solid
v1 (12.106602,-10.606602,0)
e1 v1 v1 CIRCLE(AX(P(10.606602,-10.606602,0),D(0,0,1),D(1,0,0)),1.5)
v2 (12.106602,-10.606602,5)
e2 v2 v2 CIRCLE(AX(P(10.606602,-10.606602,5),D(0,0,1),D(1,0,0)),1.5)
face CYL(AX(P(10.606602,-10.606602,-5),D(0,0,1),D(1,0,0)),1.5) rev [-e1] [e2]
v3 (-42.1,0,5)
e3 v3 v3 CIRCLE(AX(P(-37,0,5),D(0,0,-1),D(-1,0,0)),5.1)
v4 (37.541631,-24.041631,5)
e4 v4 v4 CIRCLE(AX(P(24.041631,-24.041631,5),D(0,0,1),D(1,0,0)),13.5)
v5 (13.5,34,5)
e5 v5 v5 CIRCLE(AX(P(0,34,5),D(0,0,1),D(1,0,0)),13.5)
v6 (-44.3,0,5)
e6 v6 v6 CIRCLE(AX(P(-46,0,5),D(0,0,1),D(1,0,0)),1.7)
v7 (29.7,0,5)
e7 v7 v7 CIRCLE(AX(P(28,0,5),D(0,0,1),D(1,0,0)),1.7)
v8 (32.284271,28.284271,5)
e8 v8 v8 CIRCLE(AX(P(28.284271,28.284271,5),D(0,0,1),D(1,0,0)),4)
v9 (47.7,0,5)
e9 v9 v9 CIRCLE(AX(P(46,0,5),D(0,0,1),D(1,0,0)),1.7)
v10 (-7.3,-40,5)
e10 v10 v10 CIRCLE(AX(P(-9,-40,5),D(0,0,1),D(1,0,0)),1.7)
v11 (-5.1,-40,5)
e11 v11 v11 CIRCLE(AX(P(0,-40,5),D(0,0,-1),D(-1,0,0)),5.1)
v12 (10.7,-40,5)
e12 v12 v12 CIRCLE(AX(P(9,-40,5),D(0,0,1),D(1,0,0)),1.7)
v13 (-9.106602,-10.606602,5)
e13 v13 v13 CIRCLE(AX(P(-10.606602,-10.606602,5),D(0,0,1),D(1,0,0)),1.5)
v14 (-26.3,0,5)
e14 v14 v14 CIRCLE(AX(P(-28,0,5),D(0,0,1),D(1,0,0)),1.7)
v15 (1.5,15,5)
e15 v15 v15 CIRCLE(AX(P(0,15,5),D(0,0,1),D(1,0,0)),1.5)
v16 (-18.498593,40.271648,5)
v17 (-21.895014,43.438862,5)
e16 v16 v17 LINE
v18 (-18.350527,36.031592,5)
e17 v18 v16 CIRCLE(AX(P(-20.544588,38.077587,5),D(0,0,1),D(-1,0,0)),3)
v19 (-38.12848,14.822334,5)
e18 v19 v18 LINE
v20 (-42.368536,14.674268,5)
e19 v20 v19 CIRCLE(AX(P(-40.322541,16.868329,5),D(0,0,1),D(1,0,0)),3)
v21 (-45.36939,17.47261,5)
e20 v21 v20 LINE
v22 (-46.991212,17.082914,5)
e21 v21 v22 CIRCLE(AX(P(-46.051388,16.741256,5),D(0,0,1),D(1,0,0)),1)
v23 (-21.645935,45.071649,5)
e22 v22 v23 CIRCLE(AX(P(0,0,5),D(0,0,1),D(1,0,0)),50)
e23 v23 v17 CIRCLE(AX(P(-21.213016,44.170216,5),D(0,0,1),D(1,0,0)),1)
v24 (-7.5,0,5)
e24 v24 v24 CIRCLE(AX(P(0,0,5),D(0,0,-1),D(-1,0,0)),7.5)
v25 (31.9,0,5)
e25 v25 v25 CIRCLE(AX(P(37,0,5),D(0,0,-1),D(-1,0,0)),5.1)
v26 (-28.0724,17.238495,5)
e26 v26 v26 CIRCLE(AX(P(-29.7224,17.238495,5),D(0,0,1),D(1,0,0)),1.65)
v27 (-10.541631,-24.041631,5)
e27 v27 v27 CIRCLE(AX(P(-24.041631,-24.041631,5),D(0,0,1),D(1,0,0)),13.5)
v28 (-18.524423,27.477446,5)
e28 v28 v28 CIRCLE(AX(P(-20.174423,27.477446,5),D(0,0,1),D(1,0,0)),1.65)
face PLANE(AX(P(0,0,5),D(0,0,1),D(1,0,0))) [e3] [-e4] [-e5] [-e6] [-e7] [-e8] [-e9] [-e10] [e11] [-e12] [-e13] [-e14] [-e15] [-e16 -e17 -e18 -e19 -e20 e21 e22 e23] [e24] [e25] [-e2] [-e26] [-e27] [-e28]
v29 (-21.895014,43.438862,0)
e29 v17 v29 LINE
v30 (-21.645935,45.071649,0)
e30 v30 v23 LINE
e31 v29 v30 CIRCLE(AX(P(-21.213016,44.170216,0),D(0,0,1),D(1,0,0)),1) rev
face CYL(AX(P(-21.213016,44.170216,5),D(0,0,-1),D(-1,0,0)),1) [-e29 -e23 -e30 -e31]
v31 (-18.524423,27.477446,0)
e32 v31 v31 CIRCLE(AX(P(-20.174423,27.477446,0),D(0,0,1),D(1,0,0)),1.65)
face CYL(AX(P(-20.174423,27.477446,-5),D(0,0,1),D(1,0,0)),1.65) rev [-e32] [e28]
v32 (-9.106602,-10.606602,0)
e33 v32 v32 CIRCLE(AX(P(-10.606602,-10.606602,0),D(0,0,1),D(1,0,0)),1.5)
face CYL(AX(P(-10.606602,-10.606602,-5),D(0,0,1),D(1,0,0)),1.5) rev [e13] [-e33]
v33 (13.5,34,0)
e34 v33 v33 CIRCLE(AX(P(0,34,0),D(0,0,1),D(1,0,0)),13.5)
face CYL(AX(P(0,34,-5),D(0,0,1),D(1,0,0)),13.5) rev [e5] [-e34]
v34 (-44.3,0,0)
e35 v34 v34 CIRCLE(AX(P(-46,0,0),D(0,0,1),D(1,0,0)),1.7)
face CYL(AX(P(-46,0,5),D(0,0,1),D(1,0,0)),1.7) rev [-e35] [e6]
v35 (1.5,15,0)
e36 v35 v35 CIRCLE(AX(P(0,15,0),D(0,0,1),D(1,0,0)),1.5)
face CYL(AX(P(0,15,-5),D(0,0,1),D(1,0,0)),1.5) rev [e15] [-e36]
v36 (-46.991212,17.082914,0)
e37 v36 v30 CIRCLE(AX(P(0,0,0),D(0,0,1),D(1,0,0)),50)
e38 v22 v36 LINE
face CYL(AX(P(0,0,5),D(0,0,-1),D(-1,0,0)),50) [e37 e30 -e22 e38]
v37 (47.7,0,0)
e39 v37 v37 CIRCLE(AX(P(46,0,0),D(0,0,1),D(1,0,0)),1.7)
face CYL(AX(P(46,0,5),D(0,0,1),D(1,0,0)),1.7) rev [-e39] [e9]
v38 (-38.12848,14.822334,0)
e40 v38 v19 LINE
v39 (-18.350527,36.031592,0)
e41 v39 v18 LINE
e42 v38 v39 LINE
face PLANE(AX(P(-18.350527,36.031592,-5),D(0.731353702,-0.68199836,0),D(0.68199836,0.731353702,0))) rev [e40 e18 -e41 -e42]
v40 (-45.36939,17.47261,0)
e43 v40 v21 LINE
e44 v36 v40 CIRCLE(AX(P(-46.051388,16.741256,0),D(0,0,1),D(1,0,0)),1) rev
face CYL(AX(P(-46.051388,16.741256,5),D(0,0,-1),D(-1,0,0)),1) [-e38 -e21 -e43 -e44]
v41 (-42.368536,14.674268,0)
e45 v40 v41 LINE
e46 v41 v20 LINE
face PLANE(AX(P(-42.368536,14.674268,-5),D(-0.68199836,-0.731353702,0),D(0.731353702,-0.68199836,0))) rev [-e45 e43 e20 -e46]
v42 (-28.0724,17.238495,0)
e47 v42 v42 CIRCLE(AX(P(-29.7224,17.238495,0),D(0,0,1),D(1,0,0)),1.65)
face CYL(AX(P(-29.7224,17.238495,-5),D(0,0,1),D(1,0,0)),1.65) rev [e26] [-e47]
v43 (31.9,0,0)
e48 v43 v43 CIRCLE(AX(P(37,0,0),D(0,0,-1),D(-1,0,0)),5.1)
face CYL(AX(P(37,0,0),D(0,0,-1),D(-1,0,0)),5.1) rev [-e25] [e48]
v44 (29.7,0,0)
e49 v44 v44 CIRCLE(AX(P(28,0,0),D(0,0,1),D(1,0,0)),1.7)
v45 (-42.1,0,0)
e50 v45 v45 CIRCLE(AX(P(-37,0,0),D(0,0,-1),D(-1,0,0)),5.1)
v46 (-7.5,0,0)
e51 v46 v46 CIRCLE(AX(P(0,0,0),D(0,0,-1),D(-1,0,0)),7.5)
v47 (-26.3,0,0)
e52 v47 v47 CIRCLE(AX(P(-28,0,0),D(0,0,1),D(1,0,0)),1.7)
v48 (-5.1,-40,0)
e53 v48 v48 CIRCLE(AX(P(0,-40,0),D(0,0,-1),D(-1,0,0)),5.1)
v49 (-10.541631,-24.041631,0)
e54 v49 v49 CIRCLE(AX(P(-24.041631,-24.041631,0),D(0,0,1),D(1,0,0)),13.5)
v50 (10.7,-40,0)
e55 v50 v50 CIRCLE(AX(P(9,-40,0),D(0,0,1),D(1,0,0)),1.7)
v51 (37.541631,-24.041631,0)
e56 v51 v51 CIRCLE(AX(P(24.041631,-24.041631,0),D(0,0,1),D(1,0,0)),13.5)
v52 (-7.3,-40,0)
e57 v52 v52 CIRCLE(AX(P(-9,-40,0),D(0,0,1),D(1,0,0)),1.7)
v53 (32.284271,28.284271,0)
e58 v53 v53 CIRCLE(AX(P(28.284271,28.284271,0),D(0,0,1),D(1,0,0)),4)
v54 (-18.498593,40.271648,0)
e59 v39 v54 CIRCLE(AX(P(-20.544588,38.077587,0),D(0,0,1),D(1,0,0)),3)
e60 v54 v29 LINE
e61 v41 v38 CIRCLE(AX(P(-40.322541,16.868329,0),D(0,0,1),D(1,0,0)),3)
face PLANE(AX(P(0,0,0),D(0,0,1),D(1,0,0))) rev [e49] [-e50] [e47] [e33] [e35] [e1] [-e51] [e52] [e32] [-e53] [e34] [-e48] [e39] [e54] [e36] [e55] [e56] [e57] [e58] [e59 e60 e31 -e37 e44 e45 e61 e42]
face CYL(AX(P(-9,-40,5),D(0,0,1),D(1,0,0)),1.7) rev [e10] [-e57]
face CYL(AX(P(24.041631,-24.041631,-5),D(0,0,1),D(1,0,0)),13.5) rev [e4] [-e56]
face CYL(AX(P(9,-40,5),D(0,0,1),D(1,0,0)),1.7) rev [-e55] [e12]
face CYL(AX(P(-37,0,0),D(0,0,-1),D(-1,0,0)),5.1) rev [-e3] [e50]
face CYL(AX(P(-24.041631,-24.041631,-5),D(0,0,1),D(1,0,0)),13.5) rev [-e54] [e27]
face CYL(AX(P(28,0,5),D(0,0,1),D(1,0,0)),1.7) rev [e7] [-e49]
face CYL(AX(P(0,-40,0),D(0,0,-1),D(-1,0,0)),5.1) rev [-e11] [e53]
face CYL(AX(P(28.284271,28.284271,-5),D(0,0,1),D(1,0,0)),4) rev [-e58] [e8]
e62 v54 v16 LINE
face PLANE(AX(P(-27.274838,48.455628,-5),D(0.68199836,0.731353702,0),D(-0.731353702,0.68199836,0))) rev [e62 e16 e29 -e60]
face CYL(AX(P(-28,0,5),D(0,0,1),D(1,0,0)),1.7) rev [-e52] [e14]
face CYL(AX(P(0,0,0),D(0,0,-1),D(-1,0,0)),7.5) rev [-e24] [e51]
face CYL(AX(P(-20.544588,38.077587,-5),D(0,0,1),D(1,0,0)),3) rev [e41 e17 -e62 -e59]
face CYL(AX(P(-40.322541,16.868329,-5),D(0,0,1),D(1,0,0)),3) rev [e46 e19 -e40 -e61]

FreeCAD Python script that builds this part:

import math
import FreeCAD as App
import Part
import Sketcher
from FreeCAD import Vector
Q = App.Units.Quantity


def edges_at(feature, points):
    """Names of the edges that pass closest to the given points."""
    edges = feature.Shape.Edges
    near = lambda p: min(range(len(edges)), key=lambda i: edges[i].distToShape(Part.Vertex(*p))[0])
    return sorted({f"Edge{near(p) + 1}" for p in points})

doc = App.newDocument("Part")
body = doc.addObject("PartDesign::Body", "Body")

# Sketch on XY plane
sketch1 = body.newObject("Sketcher::SketchObject", "Sketch")
sketch1.AttachmentSupport = (doc.getObject("XY_Plane"), [""])
sketch1.MapMode = "FlatFace"
sketch1.addGeometry(Part.Circle(Vector(0, 0, 0), Vector(0, 0, 1), 50), False)
sketch1.addConstraint([
    Sketcher.Constraint("Coincident", 0, 3, -1, 1),
    Sketcher.Constraint("Diameter", 0, 100.0),
])
pad1 = body.newObject("PartDesign::Pad", "Pad")
pad1.Profile = sketch1
pad1.Length = 5

# Sketch on XY plane
sketch2 = body.newObject("Sketcher::SketchObject", "Sketch001")
sketch2.AttachmentSupport = (doc.getObject("XY_Plane"), [""])
sketch2.MapMode = "FlatFace"
sketch2.addGeometry(Part.Circle(Vector(0, 0, 0), Vector(0, 0, 1), 8), False)
sketch2.addConstraint([
    Sketcher.Constraint("Coincident", 0, 3, -1, 1),
    Sketcher.Constraint("Diameter", 0, 15.0),
])
doc.recompute()
hole = body.newObject("PartDesign::Hole", "Hole")
hole.Profile = sketch2
hole.ThreadType = "None"
hole.Diameter = 15
hole.DepthType = "ThroughAll"
hole.Reversed = True

# Sketch on XY plane
sketch3 = body.newObject("Sketcher::SketchObject", "Sketch002")
sketch3.AttachmentSupport = (doc.getObject("XY_Plane"), [""])
sketch3.MapMode = "FlatFace"
sketch3.addGeometry([
    Part.Circle(Vector(-37, 0, 0), Vector(0, 0, 1), 5),
    Part.Circle(Vector(37, 0, 0), Vector(0, 0, 1), 5),
    Part.Circle(Vector(0, -40, 0), Vector(0, 0, 1), 5),
], False)
sketch3.addConstraint([
    Sketcher.Constraint("Equal", 0, 1),
    Sketcher.Constraint("Equal", 1, 2),
    Sketcher.Constraint("Symmetric", 0, 3, 1, 3, -1, 1),
    Sketcher.Constraint("PointOnObject", 0, 3, -1),
    Sketcher.Constraint("PointOnObject", 2, 3, -2),
    Sketcher.Constraint("Diameter", 0, 10.2),
    Sketcher.Constraint("DistanceX", 0, 3, -1, 1, 37.0),
    Sketcher.Constraint("DistanceY", 2, 3, -1, 1, 40.0),
])
doc.recompute()
hole2 = body.newObject("PartDesign::Hole", "Hole001")
hole2.Profile = sketch3
hole2.ThreadType = "None"
hole2.Diameter = 10.2
hole2.DepthType = "ThroughAll"
hole2.Reversed = True

# Sketch on XY plane
sketch4 = body.newObject("Sketcher::SketchObject", "Sketch003")
sketch4.AttachmentSupport = (doc.getObject("XY_Plane"), [""])
sketch4.MapMode = "FlatFace"
sketch4.AttachmentOffset = App.Placement(Vector(0, 0, 5), App.Rotation())
sketch4.addGeometry([
    Part.Circle(Vector(46, 0, 0), Vector(0, 0, 1), 1.7),  # 0
    Part.Circle(Vector(28, 0, 0), Vector(0, 0, 1), 1.7),  # 1
    Part.Circle(Vector(9, -40, 0), Vector(0, 0, 1), 1.7),  # 2
    Part.Circle(Vector(-9, -40, 0), Vector(0, 0, 1), 1.7),  # 3
    Part.Circle(Vector(-46, 0, 0), Vector(0, 0, 1), 1.7),  # 4
    Part.Circle(Vector(-28, 0, 0), Vector(0, 0, 1), 1.7),  # 5
], False)
sketch4.addConstraint([
    Sketcher.Constraint("Equal", 0, 1),
    Sketcher.Constraint("Equal", 1, 2),
    Sketcher.Constraint("Equal", 2, 3),
    Sketcher.Constraint("Equal", 3, 4),
    Sketcher.Constraint("Equal", 4, 5),
    Sketcher.Constraint("Symmetric", 0, 3, 4, 3, -1, 1),
    Sketcher.Constraint("Symmetric", 1, 3, 5, 3, -1, 1),
    Sketcher.Constraint("Symmetric", 2, 3, 3, 3, -2),
    Sketcher.Constraint("PointOnObject", 0, 3, -1),
    Sketcher.Constraint("PointOnObject", 1, 3, -1),
    Sketcher.Constraint("Diameter", 0, 3.4),
    Sketcher.Constraint("DistanceX", -1, 1, 0, 3, 46.0),
    Sketcher.Constraint("DistanceX", -1, 1, 1, 3, 28.0),
    Sketcher.Constraint("DistanceX", -1, 1, 2, 3, 9.0),
    Sketcher.Constraint("DistanceY", 2, 3, -1, 1, 40.0),
])
doc.recompute()
hole3 = body.newObject("PartDesign::Hole", "Hole002")
hole3.Profile = sketch4
hole3.ThreadType = "None"
hole3.Diameter = 3.4
hole3.DepthType = "ThroughAll"

# Sketch on XY plane
sketch5 = body.newObject("Sketcher::SketchObject", "Sketch004")
sketch5.AttachmentSupport = (doc.getObject("XY_Plane"), [""])
sketch5.MapMode = "FlatFace"
sketch5.AttachmentOffset = App.Placement(Vector(0, 0, 5), App.Rotation())
sketch5.addGeometry([
    Part.Circle(Vector(24, -24, 0), Vector(0, 0, 1), 13.5),  # 0
    Part.Circle(Vector(10.6, -10.6, 0), Vector(0, 0, 1), 1.5),  # 1
    Part.Circle(Vector(-24, -24, 0), Vector(0, 0, 1), 13.5),  # 2
    Part.Circle(Vector(-10.6, -10.6, 0), Vector(0, 0, 1), 1.5),  # 3
    Part.Circle(Vector(0, 34, 0), Vector(0, 0, 1), 13.5),  # 4
    Part.Circle(Vector(0, 15, 0), Vector(0, 0, 1), 1.5),  # 5
], False)
sketch5.addConstraint([
    Sketcher.Constraint("Equal", 0, 2),
    Sketcher.Constraint("Equal", 1, 3),
    Sketcher.Constraint("Equal", 2, 4),
    Sketcher.Constraint("Equal", 3, 5),
    Sketcher.Constraint("Symmetric", 0, 3, 2, 3, -2),
    Sketcher.Constraint("Symmetric", 1, 3, 3, 3, -2),
    Sketcher.Constraint("PointOnObject", 4, 3, -2),
    Sketcher.Constraint("PointOnObject", 5, 3, -2),
    Sketcher.Constraint("Diameter", 0, 27.0),
    Sketcher.Constraint("Diameter", 1, 3.0),
    Sketcher.Constraint("DistanceY", -1, 1, 4, 3, 34.0),
    Sketcher.Constraint("DistanceY", -1, 1, 5, 3, 15.0),
    Sketcher.Constraint("DistanceX", -1, 1, 1, 3, 10.606602),
    Sketcher.Constraint("DistanceY", 1, 3, -1, 1, 10.606602),
    Sketcher.Constraint("DistanceX", -1, 1, 0, 3, 24.041631),
    Sketcher.Constraint("DistanceY", 0, 3, -1, 1, 24.041631),
])
pocket1 = body.newObject("PartDesign::Pocket", "Pocket")
pocket1.Profile = sketch5
pocket1.Length = 10

# Sketch on XY plane
sketch6 = body.newObject("Sketcher::SketchObject", "Sketch005")
sketch6.AttachmentSupport = (doc.getObject("XY_Plane"), [""])
sketch6.MapMode = "FlatFace"
sketch6.AttachmentOffset = App.Placement(Vector(0, 0, 5), App.Rotation())
sketch6.addGeometry([
    Part.Circle(Vector(-20.2, 27.5, 0), Vector(0, 0, 1), 1.6),  # 0
    Part.Circle(Vector(-29.7, 17.2, 0), Vector(0, 0, 1), 1.6),  # 1
    Part.LineSegment(Vector(-18.5, 40.3, 0), Vector(-27.3, 48.5, 0)),  # 2
    Part.LineSegment(Vector(-27.3, 48.5, 0), Vector(-51.1, 22.9, 0)),  # 3
    Part.LineSegment(Vector(-51.1, 22.9, 0), Vector(-42.4, 14.7, 0)),  # 4
    Part.ArcOfCircle(Part.Circle(Vector(-40.3, 16.9, 0), Vector(0, 0, 1), 3), math.radians(-133), math.radians(-43)),  # 5
    Part.LineSegment(Vector(-38.1, 14.8, 0), Vector(-18.4, 36, 0)),  # 6
    Part.ArcOfCircle(Part.Circle(Vector(-20.5, 38.1, 0), Vector(0, 0, 1), 3), math.radians(-43), math.radians(47)),  # 7
], False)
sketch6.addConstraint([
    Sketcher.Constraint("Coincident", 2, 2, 3, 1),
    Sketcher.Constraint("Coincident", 3, 2, 4, 1),
    Sketcher.Constraint("Tangent", 4, 2, 5, 1),
    Sketcher.Constraint("Tangent", 5, 2, 6, 1),
    Sketcher.Constraint("Tangent", 6, 2, 7, 1),
    Sketcher.Constraint("Tangent", 7, 2, 2, 1),
    Sketcher.Constraint("Equal", 0, 1),
    Sketcher.Constraint("Equal", 5, 7),
    Sketcher.Constraint("Perpendicular", 2, 3),
    Sketcher.Constraint("Perpendicular", 3, 4),
    Sketcher.Constraint("Perpendicular", 4, 6),
    Sketcher.Constraint("Radius", 5, 3.0),
    Sketcher.Constraint("Diameter", 0, 3.3),
    Sketcher.Constraint("Angle", 2, Q("137 deg")),
    Sketcher.Constraint("Distance", 2, 12.0),
    Sketcher.Constraint("Distance", 3, 35.0),
    Sketcher.Constraint("DistanceX", 1, 3, -1, 1, 29.7224),
    Sketcher.Constraint("DistanceY", 0, 3, 7, 2, 12.794202),
    Sketcher.Constraint("DistanceX", 5, 3, -1, 1, 40.322541),
    Sketcher.Constraint("DistanceY", -1, 1, 5, 3, 16.868329),
    Sketcher.Constraint("DistanceY", 1, 3, 0, 3, 10.238952),
    Sketcher.Constraint("DistanceX", 0, 3, 7, 2, 1.67583),
])
pocket2 = body.newObject("PartDesign::Pocket", "Pocket001")
pocket2.Profile = sketch6
pocket2.Length = 10

# Sketch on XY plane
sketch7 = body.newObject("Sketcher::SketchObject", "Sketch006")
sketch7.AttachmentSupport = (doc.getObject("XY_Plane"), [""])
sketch7.MapMode = "FlatFace"
sketch7.AttachmentOffset = App.Placement(Vector(0, 0, 5), App.Rotation())
sketch7.addGeometry(Part.Circle(Vector(28.3, 28.3, 0), Vector(0, 0, 1), 4), False)
sketch7.addConstraint([
    Sketcher.Constraint("Diameter", 0, 8.0),
    Sketcher.Constraint("DistanceX", -1, 1, 0, 3, 28.284271),
    Sketcher.Constraint("DistanceY", -1, 1, 0, 3, 28.284271),
])
pocket3 = body.newObject("PartDesign::Pocket", "Pocket002")
pocket3.Profile = sketch7
pocket3.Length = 10
doc.recompute()

fillet = body.newObject("PartDesign::Fillet", "Fillet")
fillet.Base = (pocket3, edges_at(pocket3, [(-22.949, 44.422, 2.5), (-46.457, 18.487, 2.5)]))
fillet.Radius = 1

doc.recompute()
